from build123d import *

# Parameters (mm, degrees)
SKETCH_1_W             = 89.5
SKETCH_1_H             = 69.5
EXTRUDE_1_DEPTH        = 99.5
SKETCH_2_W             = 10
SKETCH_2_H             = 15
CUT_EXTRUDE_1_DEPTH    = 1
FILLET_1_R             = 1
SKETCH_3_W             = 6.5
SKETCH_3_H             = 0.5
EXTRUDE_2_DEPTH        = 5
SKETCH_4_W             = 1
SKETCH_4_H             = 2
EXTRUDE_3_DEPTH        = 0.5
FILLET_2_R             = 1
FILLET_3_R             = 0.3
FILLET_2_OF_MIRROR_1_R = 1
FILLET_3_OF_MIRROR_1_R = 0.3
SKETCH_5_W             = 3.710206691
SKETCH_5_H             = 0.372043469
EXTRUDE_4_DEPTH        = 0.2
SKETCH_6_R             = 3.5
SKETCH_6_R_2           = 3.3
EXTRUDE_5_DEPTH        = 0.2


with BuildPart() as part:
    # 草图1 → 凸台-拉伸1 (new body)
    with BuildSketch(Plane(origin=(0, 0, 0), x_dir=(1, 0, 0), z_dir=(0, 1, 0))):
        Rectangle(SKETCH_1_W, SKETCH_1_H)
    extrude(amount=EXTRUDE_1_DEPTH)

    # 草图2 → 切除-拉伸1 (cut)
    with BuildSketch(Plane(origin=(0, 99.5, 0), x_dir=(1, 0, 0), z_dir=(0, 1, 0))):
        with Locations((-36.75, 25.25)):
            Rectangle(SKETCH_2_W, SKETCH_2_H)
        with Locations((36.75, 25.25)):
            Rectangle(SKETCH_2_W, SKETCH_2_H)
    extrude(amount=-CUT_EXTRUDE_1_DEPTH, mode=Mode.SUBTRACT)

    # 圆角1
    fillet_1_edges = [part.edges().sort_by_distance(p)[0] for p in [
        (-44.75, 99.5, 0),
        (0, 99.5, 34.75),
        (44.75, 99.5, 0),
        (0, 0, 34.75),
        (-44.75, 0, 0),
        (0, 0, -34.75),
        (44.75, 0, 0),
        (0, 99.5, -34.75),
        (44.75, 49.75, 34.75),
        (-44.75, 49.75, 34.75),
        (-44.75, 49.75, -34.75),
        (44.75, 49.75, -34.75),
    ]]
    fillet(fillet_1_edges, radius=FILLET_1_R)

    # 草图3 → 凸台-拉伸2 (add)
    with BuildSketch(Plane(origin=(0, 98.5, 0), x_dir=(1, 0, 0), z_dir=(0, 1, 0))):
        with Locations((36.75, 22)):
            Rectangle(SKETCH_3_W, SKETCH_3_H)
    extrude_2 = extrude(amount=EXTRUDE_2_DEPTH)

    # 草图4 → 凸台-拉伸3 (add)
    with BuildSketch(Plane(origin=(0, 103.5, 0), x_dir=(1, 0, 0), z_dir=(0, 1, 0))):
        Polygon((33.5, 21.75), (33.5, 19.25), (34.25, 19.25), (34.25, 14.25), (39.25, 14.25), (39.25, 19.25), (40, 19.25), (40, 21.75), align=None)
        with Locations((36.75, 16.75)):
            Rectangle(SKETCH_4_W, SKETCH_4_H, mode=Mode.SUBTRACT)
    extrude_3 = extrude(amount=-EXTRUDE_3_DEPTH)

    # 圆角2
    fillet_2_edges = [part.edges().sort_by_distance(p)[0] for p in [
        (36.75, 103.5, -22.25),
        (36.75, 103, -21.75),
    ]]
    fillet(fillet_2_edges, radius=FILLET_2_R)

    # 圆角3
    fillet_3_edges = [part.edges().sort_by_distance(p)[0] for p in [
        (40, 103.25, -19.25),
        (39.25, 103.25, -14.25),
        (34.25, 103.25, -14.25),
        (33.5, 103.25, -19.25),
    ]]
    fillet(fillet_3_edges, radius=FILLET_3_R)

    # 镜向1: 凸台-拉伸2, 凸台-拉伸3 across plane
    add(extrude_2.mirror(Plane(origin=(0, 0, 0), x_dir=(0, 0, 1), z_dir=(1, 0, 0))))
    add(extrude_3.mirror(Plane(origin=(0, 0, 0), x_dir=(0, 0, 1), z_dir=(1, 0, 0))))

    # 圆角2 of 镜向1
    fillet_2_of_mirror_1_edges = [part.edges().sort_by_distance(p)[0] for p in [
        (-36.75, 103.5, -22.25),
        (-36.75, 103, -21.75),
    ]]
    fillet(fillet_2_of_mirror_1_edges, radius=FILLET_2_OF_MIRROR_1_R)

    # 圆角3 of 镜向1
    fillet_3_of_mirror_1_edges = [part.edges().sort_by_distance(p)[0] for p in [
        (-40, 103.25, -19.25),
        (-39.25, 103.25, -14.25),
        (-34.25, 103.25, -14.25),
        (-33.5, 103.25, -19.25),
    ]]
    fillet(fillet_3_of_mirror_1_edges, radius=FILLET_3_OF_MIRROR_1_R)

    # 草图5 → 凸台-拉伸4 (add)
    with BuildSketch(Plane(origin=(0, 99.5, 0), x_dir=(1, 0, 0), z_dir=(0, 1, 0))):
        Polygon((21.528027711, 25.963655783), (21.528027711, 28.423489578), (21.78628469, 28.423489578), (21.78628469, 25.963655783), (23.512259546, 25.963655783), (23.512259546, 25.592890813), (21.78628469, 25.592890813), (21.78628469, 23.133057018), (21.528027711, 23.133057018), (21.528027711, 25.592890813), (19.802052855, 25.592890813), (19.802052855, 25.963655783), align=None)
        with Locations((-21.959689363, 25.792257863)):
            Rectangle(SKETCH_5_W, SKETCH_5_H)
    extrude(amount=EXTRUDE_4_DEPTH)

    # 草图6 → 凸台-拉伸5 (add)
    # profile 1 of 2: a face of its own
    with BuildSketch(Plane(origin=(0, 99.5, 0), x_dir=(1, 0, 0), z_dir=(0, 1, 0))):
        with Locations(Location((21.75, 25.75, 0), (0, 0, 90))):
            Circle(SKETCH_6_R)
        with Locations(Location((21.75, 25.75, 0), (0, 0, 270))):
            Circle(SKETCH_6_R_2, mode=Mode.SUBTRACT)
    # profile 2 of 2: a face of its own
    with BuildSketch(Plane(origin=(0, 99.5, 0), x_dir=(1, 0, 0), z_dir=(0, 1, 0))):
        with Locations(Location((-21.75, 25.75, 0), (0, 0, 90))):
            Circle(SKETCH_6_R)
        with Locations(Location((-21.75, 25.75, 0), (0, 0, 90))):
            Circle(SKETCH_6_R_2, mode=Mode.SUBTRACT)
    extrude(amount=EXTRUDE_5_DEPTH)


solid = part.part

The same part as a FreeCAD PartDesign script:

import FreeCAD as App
import Part
import Sketcher


def edges_at(feature, points):
    """Names of the edges that pass closest to the given points."""
    edges = feature.Shape.Edges
    near = lambda p: min(range(len(edges)), key=lambda i: edges[i].distToShape(Part.Vertex(*p))[0])
    return sorted({f"Edge{near(p) + 1}" for p in points})


def add_polygon(sketch, points):
    """Adds a closed chain of lines whose ends are joined by coincident constraints."""
    first, n = sketch.GeometryCount, len(points)
    for a, b in zip(points, points[1:] + points[:1]):
        sketch.addGeometry(Part.LineSegment(App.Vector(*a, 0), App.Vector(*b, 0)), False)
    for i in range(n):
        sketch.addConstraint(Sketcher.Constraint("Coincident", first + i, 2, first + (i + 1) % n, 1))

doc = App.newDocument("Part")
body = doc.addObject("PartDesign::Body", "Body")

# Sketch on XZ plane
sketch1 = body.newObject("Sketcher::SketchObject", "Sketch")
sketch1.AttachmentSupport = (doc.getObject("XZ_Plane"), [""])
sketch1.MapMode = "FlatFace"
add_polygon(sketch1, [(-44.75, -34.75), (-44.75, 34.75), (44.75, 34.75), (44.75, -34.75)])  # lines 0-3
sketch1.addConstraint(Sketcher.Constraint("Vertical", 0))
sketch1.addConstraint(Sketcher.Constraint("Horizontal", 1))
sketch1.addConstraint(Sketcher.Constraint("Vertical", 2))
sketch1.addConstraint(Sketcher.Constraint("Horizontal", 3))
sketch1.addConstraint(Sketcher.Constraint("Symmetric", 0, 2, 2, 2, -1, 1))
sketch1.addConstraint(Sketcher.Constraint("DistanceX", 1, 1, 1, 2, 89.5))
sketch1.addConstraint(Sketcher.Constraint("DistanceY", 0, 1, 0, 2, 69.5))
pad1 = body.newObject("PartDesign::Pad", "Pad")
pad1.Profile = sketch1
pad1.Length = 99.5
pad1.Reversed = True

# Sketch on XZ plane
sketch2 = body.newObject("Sketcher::SketchObject", "Sketch001")
sketch2.AttachmentSupport = (doc.getObject("XZ_Plane"), [""])
sketch2.MapMode = "FlatFace"
sketch2.AttachmentOffset = App.Placement(App.Vector(0, 0, -99.5), App.Rotation())
add_polygon(sketch2, [(-41.75, -32.75), (-41.75, -17.75), (-31.75, -17.75), (-31.75, -32.75)])  # lines 0-3
add_polygon(sketch2, [(31.75, -32.75), (31.75, -17.75), (41.75, -17.75), (41.75, -32.75)])  # lines 4-7
sketch2.addConstraint(Sketcher.Constraint("Vertical", 0))
sketch2.addConstraint(Sketcher.Constraint("Horizontal", 1))
sketch2.addConstraint(Sketcher.Constraint("Vertical", 2))
sketch2.addConstraint(Sketcher.Constraint("Horizontal", 3))
sketch2.addConstraint(Sketcher.Constraint("Vertical", 4))
sketch2.addConstraint(Sketcher.Constraint("Horizontal", 5))
sketch2.addConstraint(Sketcher.Constraint("Vertical", 6))
sketch2.addConstraint(Sketcher.Constraint("Horizontal", 7))
sketch2.addConstraint(Sketcher.Constraint("Symmetric", 1, 2, 4, 2, -2))
sketch2.addConstraint(Sketcher.Constraint("Symmetric", 3, 2, 6, 2, -2))
sketch2.addConstraint(Sketcher.Constraint("DistanceX", 1, 1, 1, 2, 10.0))
sketch2.addConstraint(Sketcher.Constraint("DistanceY", 0, 1, 0, 2, 15.0))
sketch2.addConstraint(Sketcher.Constraint("DistanceX", 1, 2, 4, 2, 63.5))
sketch2.addConstraint(Sketcher.Constraint("DistanceY", 0, 2, -1, 1, 17.75))
pocket1 = body.newObject("PartDesign::Pocket", "Pocket")
pocket1.Profile = sketch2
pocket1.Length = 1
pocket1.Reversed = True
doc.recompute()

fillet = body.newObject("PartDesign::Fillet", "Fillet")
fillet.Base = (pocket1, edges_at(pocket1, [
    (-44.75, 99.5, 0),
    (0, 99.5, 34.75),
    (44.75, 99.5, 0),
    (0, 0, 34.75),
    (-44.75, 0, 0),
    (0, 0, -34.75),
    (44.75, 0, 0),
    (0, 99.5, -34.75),
    (44.75, 49.75, 34.75),
    (-44.75, 49.75, 34.75),
    (-44.75, 49.75, -34.75),
    (44.75, 49.75, -34.75),
]))
fillet.Radius = 1

# Sketch on XZ plane
sketch3 = body.newObject("Sketcher::SketchObject", "Sketch002")
sketch3.AttachmentSupport = (doc.getObject("XZ_Plane"), [""])
sketch3.MapMode = "FlatFace"
sketch3.AttachmentOffset = App.Placement(App.Vector(0, 0, -98.5), App.Rotation())
add_polygon(sketch3, [(33.5, -22.25), (33.5, -21.75), (40, -21.75), (40, -22.25)])  # lines 0-3
sketch3.addConstraint(Sketcher.Constraint("Vertical", 0))
sketch3.addConstraint(Sketcher.Constraint("Horizontal", 1))
sketch3.addConstraint(Sketcher.Constraint("Vertical", 2))
sketch3.addConstraint(Sketcher.Constraint("Horizontal", 3))
sketch3.addConstraint(Sketcher.Constraint("DistanceX", 1, 1, 1, 2, 6.5))
sketch3.addConstraint(Sketcher.Constraint("DistanceY", 0, 1, 0, 2, 0.5))
sketch3.addConstraint(Sketcher.Constraint("DistanceX", -1, 1, 1, 2, 40.0))
sketch3.addConstraint(Sketcher.Constraint("DistanceY", 0, 2, -1, 1, 21.75))
pad2 = body.newObject("PartDesign::Pad", "Pad001")
pad2.Profile = sketch3
pad2.Length = 5
pad2.Reversed = True

# Sketch on XZ plane
sketch4 = body.newObject("Sketcher::SketchObject", "Sketch003")
sketch4.AttachmentSupport = (doc.getObject("XZ_Plane"), [""])
sketch4.MapMode = "FlatFace"
sketch4.AttachmentOffset = App.Placement(App.Vector(0, 0, -103.5), App.Rotation())
add_polygon(sketch4, [(33.5, -21.75), (33.5, -19.25), (34.25, -19.25), (34.25, -14.25), (39.25, -14.25), (39.25, -19.25), (40, -19.25), (40, -21.75)])  # lines 0-7
add_polygon(sketch4, [(37.25, -15.75), (36.25, -15.75), (36.25, -17.75), (37.25, -17.75)])  # lines 8-11
sketch4.addConstraint(Sketcher.Constraint("Vertical", 0))
sketch4.addConstraint(Sketcher.Constraint("Horizontal", 1))
sketch4.addConstraint(Sketcher.Constraint("Vertical", 2))
sketch4.addConstraint(Sketcher.Constraint("Horizontal", 3))
sketch4.addConstraint(Sketcher.Constraint("Vertical", 4))
sketch4.addConstraint(Sketcher.Constraint("Horizontal", 5))
sketch4.addConstraint(Sketcher.Constraint("Vertical", 6))
sketch4.addConstraint(Sketcher.Constraint("Horizontal", 7))
sketch4.addConstraint(Sketcher.Constraint("Horizontal", 8))
sketch4.addConstraint(Sketcher.Constraint("Vertical", 9))
sketch4.addConstraint(Sketcher.Constraint("Horizontal", 10))
sketch4.addConstraint(Sketcher.Constraint("Vertical", 11))
sketch4.addConstraint(Sketcher.Constraint("Horizontal", 1, 2, 4, 2))
sketch4.addConstraint(Sketcher.Constraint("Equal", 1, 5))
sketch4.addConstraint(Sketcher.Constraint("Equal", 3, 2))
sketch4.addConstraint(Sketcher.Constraint("DistanceX", 3, 1, 3, 2, 5.0))
sketch4.addConstraint(Sketcher.Constraint("DistanceX", 8, 2, 8, 1, 1.0))
sketch4.addConstraint(Sketcher.Constraint("DistanceY", 9, 2, 9, 1, 2.0))
sketch4.addConstraint(Sketcher.Constraint("DistanceX", 7, 2, 7, 1, 6.5))
sketch4.addConstraint(Sketcher.Constraint("DistanceY", 0, 1, 0, 2, 2.5))
sketch4.addConstraint(Sketcher.Constraint("DistanceX", -1, 1, 5, 2, 40.0))
sketch4.addConstraint(Sketcher.Constraint("DistanceX", 2, 2, 8, 2, 2.0))
sketch4.addConstraint(Sketcher.Constraint("DistanceY", 8, 2, 2, 2, 1.5))
sketch4.addConstraint(Sketcher.Constraint("DistanceY", 0, 2, -1, 1, 19.25))
pad3 = body.newObject("PartDesign::Pad", "Pad002")
pad3.Profile = sketch4
pad3.Length = 0.5
doc.recompute()

fillet2 = body.newObject("PartDesign::Fillet", "Fillet001")
fillet2.Base = (pad3, edges_at(pad3, [(36.75, 103.5, -22.25), (36.75, 103, -21.75)]))
fillet2.Radius = 1
doc.recompute()

fillet3 = body.newObject("PartDesign::Fillet", "Fillet002")
fillet3.Base = (fillet2, edges_at(fillet2, [
    (40, 103.25, -19.25),
    (39.25, 103.25, -14.25),
    (34.25, 103.25, -14.25),
    (33.5, 103.25, -19.25),
]))
fillet3.Radius = 0.3
doc.recompute()

mirrored = body.newObject("PartDesign::Mirrored", "Mirrored")
mirrored.Originals = [pad2, pad3]
mirrored.MirrorPlane = (doc.getObject("YZ_Plane"), [""])
body.Tip = mirrored
doc.recompute()

fillet4 = body.newObject("PartDesign::Fillet", "Fillet003")
fillet4.Base = (mirrored, edges_at(mirrored, [(-36.75, 103.5, -22.25), (-36.75, 103, -21.75)]))
fillet4.Radius = 1
doc.recompute()

fillet5 = body.newObject("PartDesign::Fillet", "Fillet004")
fillet5.Base = (fillet4, edges_at(fillet4, [
    (-40, 103.25, -19.25),
    (-39.25, 103.25, -14.25),
    (-34.25, 103.25, -14.25),
    (-33.5, 103.25, -19.25),
]))
fillet5.Radius = 0.3

# Sketch on XZ plane
sketch5 = body.newObject("Sketcher::SketchObject", "Sketch004")
sketch5.AttachmentSupport = (doc.getObject("XZ_Plane"), [""])
sketch5.MapMode = "FlatFace"
sketch5.AttachmentOffset = App.Placement(App.Vector(0, 0, -99.5), App.Rotation())
add_polygon(sketch5, [(21.528028, -28.42349), (21.528028, -25.963656), (19.802053, -25.963656), (19.802053, -25.592891), (21.528028, -25.592891), (21.528028, -23.133057), (21.786285, -23.133057), (21.786285, -25.592891), (23.51226, -25.592891), (23.51226, -25.963656), (21.786285, -25.963656), (21.786285, -28.42349)])  # lines 0-11
add_polygon(sketch5, [(-23.814793, -25.97828), (-23.814793, -25.606236), (-20.104586, -25.606236), (-20.104586, -25.97828)])  # lines 12-15
sketch5.addConstraint(Sketcher.Constraint("Vertical", 0))
sketch5.addConstraint(Sketcher.Constraint("Horizontal", 1))
sketch5.addConstraint(Sketcher.Constraint("Vertical", 2))
sketch5.addConstraint(Sketcher.Constraint("Horizontal", 3))
sketch5.addConstraint(Sketcher.Constraint("Vertical", 4))
sketch5.addConstraint(Sketcher.Constraint("Horizontal", 5))
sketch5.addConstraint(Sketcher.Constraint("Vertical", 6))
sketch5.addConstraint(Sketcher.Constraint("Horizontal", 7))
sketch5.addConstraint(Sketcher.Constraint("Vertical", 8))
sketch5.addConstraint(Sketcher.Constraint("Horizontal", 9))
sketch5.addConstraint(Sketcher.Constraint("Vertical", 10))
sketch5.addConstraint(Sketcher.Constraint("Horizontal", 11))
sketch5.addConstraint(Sketcher.Constraint("Vertical", 12))
sketch5.addConstraint(Sketcher.Constraint("Horizontal", 13))
sketch5.addConstraint(Sketcher.Constraint("Vertical", 14))
sketch5.addConstraint(Sketcher.Constraint("Horizontal", 15))
sketch5.addConstraint(Sketcher.Constraint("Horizontal", 3, 2, 6, 2))
sketch5.addConstraint(Sketcher.Constraint("Horizontal", 1, 2, 8, 2))
sketch5.addConstraint(Sketcher.Constraint("Vertical", 0, 2, 3, 2))
sketch5.addConstraint(Sketcher.Constraint("Vertical", 6, 2, 9, 2))
sketch5.addConstraint(Sketcher.Constraint("Equal", 3, 7))
sketch5.addConstraint(Sketcher.Constraint("Equal", 0, 4))
sketch5.addConstraint(Sketcher.Constraint("DistanceY", 0, 2, 4, 2, 2.830599))
sketch5.addConstraint(Sketcher.Constraint("DistanceX", 1, 2, 1, 1, 1.725975))
sketch5.addConstraint(Sketcher.Constraint("DistanceX", 5, 1, 5, 2, 0.258257))
sketch5.addConstraint(Sketcher.Constraint("DistanceX", 13, 1, 13, 2, 3.710207))
sketch5.addConstraint(Sketcher.Constraint("DistanceY", 0, 1, 0, 2, 2.459834))
sketch5.addConstraint(Sketcher.Constraint("DistanceY", 12, 1, 12, 2, 0.372043))
sketch5.addConstraint(Sketcher.Constraint("DistanceY", 2, 2, -1, 1, 25.592891))
sketch5.addConstraint(Sketcher.Constraint("DistanceX", -1, 1, 7, 2, 23.51226))
sketch5.addConstraint(Sketcher.Constraint("DistanceY", 14, 2, -1, 1, 25.97828))
sketch5.addConstraint(Sketcher.Constraint("DistanceX", 12, 2, 3, 2, 45.34282))
pad4 = body.newObject("PartDesign::Pad", "Pad003")
pad4.Profile = sketch5
pad4.Length = 0.2
pad4.Reversed = True

# Sketch on XZ plane
sketch6 = body.newObject("Sketcher::SketchObject", "Sketch005")
sketch6.AttachmentSupport = (doc.getObject("XZ_Plane"), [""])
sketch6.MapMode = "FlatFace"
sketch6.AttachmentOffset = App.Placement(App.Vector(0, 0, -99.5), App.Rotation())
sketch6.addGeometry(Part.Circle(App.Vector(21.75, -25.75, 0), App.Vector(0, 0, 1), 3.5), False)
sketch6.addGeometry(Part.Circle(App.Vector(21.75, -25.75, 0), App.Vector(0, 0, 1), 3.3), False)
sketch6.addGeometry(Part.Circle(App.Vector(-21.75, -25.75, 0), App.Vector(0, 0, 1), 3.5), False)
sketch6.addGeometry(Part.Circle(App.Vector(-21.75, -25.75, 0), App.Vector(0, 0, 1), 3.3), False)
sketch6.addConstraint(Sketcher.Constraint("Coincident", 1, 3, 0, 3))
sketch6.addConstraint(Sketcher.Constraint("Coincident", 3, 3, 2, 3))
sketch6.addConstraint(Sketcher.Constraint("Equal", 0, 2))
sketch6.addConstraint(Sketcher.Constraint("Equal", 1, 3))
sketch6.addConstraint(Sketcher.Constraint("Symmetric", 0, 3, 2, 3, -2))
sketch6.addConstraint(Sketcher.Constraint("Diameter", 0, 7.0))
sketch6.addConstraint(Sketcher.Constraint("Diameter", 1, 6.6))
sketch6.addConstraint(Sketcher.Constraint("DistanceX", 2, 3, 0, 3, 43.5))
sketch6.addConstraint(Sketcher.Constraint("DistanceY", 0, 3, -1, 1, 25.75))
pad5 = body.newObject("PartDesign::Pad", "Pad004")
pad5.Profile = sketch6
pad5.Length = 0.2
pad5.Reversed = True

doc.recompute()
